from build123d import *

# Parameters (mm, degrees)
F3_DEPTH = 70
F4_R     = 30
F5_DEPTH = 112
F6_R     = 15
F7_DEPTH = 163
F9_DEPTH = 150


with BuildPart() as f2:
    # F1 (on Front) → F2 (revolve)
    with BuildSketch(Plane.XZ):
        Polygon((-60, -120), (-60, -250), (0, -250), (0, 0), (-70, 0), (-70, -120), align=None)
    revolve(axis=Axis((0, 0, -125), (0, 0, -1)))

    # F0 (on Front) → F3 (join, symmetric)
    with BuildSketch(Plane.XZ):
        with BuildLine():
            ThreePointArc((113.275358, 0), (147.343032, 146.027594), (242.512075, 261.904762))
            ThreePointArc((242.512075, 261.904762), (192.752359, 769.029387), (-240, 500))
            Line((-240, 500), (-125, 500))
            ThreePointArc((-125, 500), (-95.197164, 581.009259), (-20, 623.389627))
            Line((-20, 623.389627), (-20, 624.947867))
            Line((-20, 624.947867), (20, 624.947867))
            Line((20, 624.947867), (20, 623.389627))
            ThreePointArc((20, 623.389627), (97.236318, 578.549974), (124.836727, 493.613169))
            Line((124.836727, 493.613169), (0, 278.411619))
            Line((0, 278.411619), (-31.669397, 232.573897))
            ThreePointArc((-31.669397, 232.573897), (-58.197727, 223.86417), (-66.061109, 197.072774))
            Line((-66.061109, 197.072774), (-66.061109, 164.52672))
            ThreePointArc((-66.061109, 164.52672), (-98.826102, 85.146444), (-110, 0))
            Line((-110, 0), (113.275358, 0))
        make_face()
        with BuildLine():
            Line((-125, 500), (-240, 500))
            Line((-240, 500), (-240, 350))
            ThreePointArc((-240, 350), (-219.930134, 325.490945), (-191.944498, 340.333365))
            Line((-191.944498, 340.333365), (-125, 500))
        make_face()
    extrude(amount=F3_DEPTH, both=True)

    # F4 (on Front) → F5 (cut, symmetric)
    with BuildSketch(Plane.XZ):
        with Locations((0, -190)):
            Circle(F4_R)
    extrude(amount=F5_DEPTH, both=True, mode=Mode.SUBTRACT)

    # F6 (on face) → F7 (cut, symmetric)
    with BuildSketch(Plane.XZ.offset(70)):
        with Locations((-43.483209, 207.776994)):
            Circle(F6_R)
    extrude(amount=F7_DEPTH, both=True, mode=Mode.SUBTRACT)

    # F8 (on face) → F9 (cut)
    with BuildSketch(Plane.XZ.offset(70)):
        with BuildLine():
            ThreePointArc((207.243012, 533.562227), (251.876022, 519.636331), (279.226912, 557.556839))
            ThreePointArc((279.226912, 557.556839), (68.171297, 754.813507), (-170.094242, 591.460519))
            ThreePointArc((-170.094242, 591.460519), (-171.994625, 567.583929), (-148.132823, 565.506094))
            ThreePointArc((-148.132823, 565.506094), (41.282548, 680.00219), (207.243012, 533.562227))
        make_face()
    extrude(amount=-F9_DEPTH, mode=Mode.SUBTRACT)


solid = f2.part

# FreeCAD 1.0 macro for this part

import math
import FreeCAD as App
import Part
import Sketcher
from FreeCAD import Vector


def add_polygon(sketch, points):
    """Adds a closed chain of lines whose ends are joined by coincident constraints."""
    first, n = sketch.GeometryCount, len(points)
    for a, b in zip(points, points[1:] + points[:1]):
        sketch.addGeometry(Part.LineSegment(App.Vector(*a, 0), App.Vector(*b, 0)), False)
    for i in range(n):
        sketch.addConstraint(Sketcher.Constraint("Coincident", first + i, 2, first + (i + 1) % n, 1))

doc = App.newDocument("Part")
body = doc.addObject("PartDesign::Body", "Body")

sketch1 = body.newObject("Sketcher::SketchObject", "Sketch")
sketch1.AttachmentSupport = (doc.getObject("XZ_Plane"), [""])
sketch1.MapMode = "FlatFace"
add_polygon(sketch1, [(-60, -120), (-60, -250), (0, -250), (0, 0), (-70, 0), (-70, -120)])
sketch1.addConstraint([
    Sketcher.Constraint("Vertical", 0),
    Sketcher.Constraint("Horizontal", 1),
    Sketcher.Constraint("Vertical", 2),
    Sketcher.Constraint("Horizontal", 3),
    Sketcher.Constraint("Vertical", 4),
    Sketcher.Constraint("Horizontal", 5),
    Sketcher.Constraint("Coincident", 2, 2, -1, 1),
    Sketcher.Constraint("DistanceX", 1, 1, 1, 2, 60.0),
    Sketcher.Constraint("DistanceX", 3, 2, 3, 1, 70.0),
    Sketcher.Constraint("DistanceY", 0, 2, 0, 1, 130.0),
    Sketcher.Constraint("DistanceY", 2, 1, 2, 2, 250.0),
])
revolution = body.newObject("PartDesign::Revolution", "Revolution")
revolution.Profile = sketch1
revolution.ReferenceAxis = (sketch1, ["V_Axis"])
revolution.Angle = 360

sketch2 = body.newObject("Sketcher::SketchObject", "Sketch001")
sketch2.AttachmentSupport = (doc.getObject("XZ_Plane"), [""])
sketch2.MapMode = "FlatFace"
sketch2.addGeometry([
    Part.ArcOfCircle(Part.Circle(Vector(443.3, 0, 0), Vector(0, 0, 1), 330), math.radians(127), math.radians(180)),
    Part.ArcOfCircle(Part.Circle(Vector(60, 500, 0), Vector(0, 0, 1), 300), math.radians(-53), math.radians(180)),
    Part.LineSegment(Vector(-240, 500, 0), Vector(-240, 350, 0)),
    Part.ArcOfCircle(Part.Circle(Vector(-215, 350, 0), Vector(0, 0, 1), 25), math.radians(-180), math.radians(-23)),
    Part.LineSegment(Vector(-191.9, 340.3, 0), Vector(-125, 500, 0)),
    Part.ArcOfCircle(Part.Circle(Vector(0, 500, 0), Vector(0, 0, 1), 125), math.radians(99), math.radians(180)),
    Part.LineSegment(Vector(-20, 623.4, 0), Vector(-20, 624.9, 0)),
    Part.LineSegment(Vector(-20, 624.9, 0), Vector(20, 624.9, 0)),
    Part.LineSegment(Vector(20, 624.9, 0), Vector(20, 623.4, 0)),
    Part.ArcOfCircle(Part.Circle(Vector(0, 500, 0), Vector(0, 0, 1), 125), math.radians(-3), math.radians(81)),
    Part.LineSegment(Vector(124.8, 493.6, 0), Vector(0, 278.4, 0)),
    Part.LineSegment(Vector(0, 278.4, 0), Vector(-31.7, 232.6, 0)),
    Part.ArcOfCircle(Part.Circle(Vector(-36.7, 203, 0), Vector(0, 0, 1), 30), math.radians(80), math.radians(191)),
    Part.LineSegment(Vector(-66.1, 197.1, 0), Vector(-66.1, 164.5, 0)),
    Part.ArcOfCircle(Part.Circle(Vector(220, 0, 0), Vector(0, 0, 1), 330), math.radians(150), math.radians(180)),
    Part.LineSegment(Vector(-110, 0, 0), Vector(113.3, 0, 0)),
], False)
sketch2.addConstraint([
    Sketcher.Constraint("Tangent", 0, 1, 1, 1),
    Sketcher.Constraint("Tangent", 1, 2, 2, 1),
    Sketcher.Constraint("Tangent", 2, 2, 3, 1),
    Sketcher.Constraint("Tangent", 3, 2, 4, 1),
    Sketcher.Constraint("Coincident", 4, 2, 5, 2),
    Sketcher.Constraint("Coincident", 5, 1, 6, 1),
    Sketcher.Constraint("Coincident", 6, 2, 7, 1),
    Sketcher.Constraint("Coincident", 7, 2, 8, 1),
    Sketcher.Constraint("Coincident", 8, 2, 9, 2),
    Sketcher.Constraint("Coincident", 9, 1, 10, 1),
    Sketcher.Constraint("Coincident", 10, 2, 11, 1),
    Sketcher.Constraint("Coincident", 11, 2, 12, 1),
    Sketcher.Constraint("Coincident", 12, 2, 13, 1),
    Sketcher.Constraint("Coincident", 13, 2, 14, 1),
    Sketcher.Constraint("Coincident", 14, 2, 15, 1),
    Sketcher.Constraint("Coincident", 15, 2, 0, 2),
    Sketcher.Constraint("Vertical", 2),
    Sketcher.Constraint("Vertical", 6),
    Sketcher.Constraint("Horizontal", 7),
    Sketcher.Constraint("Vertical", 8),
    Sketcher.Constraint("Vertical", 13),
    Sketcher.Constraint("Horizontal", 15),
    Sketcher.Constraint("Coincident", 9, 3, 5, 3),
    Sketcher.Constraint("Equal", 5, 9),
    Sketcher.Constraint("Symmetric", 5, 1, 8, 2, -2),
    Sketcher.Constraint("PointOnObject", 0, 3, -1),
    Sketcher.Constraint("PointOnObject", 10, 2, -2),
    Sketcher.Constraint("PointOnObject", 14, 2, -1),
    Sketcher.Constraint("Horizontal", 1, 3, 5, 3),
    Sketcher.Constraint("Horizontal", 1, 2, 4, 2),
    Sketcher.Constraint("Radius", 1, 300.0),
    Sketcher.Constraint("Radius", 3, 25.0),
    Sketcher.Constraint("Radius", 5, 124.999999),
    Sketcher.Constraint("Radius", 12, 30.0),
    Sketcher.Constraint("DistanceX", 7, 1, 7, 2, 40.0),
    Sketcher.Constraint("DistanceY", 2, 2, 2, 1, 150.0),
    Sketcher.Constraint("DistanceX", -1, 1, 1, 3, 60.0),
    Sketcher.Constraint("DistanceY", -1, 1, 1, 3, 500.0),
    Sketcher.Constraint("DistanceX", 14, 2, -1, 1, 110.0),
    Sketcher.Constraint("Radius", 0, 330.000004),
    Sketcher.Constraint("Radius", 14, 329.999982),
    Sketcher.Constraint("DistanceY", 6, 1, 6, 2, 1.55824),
    Sketcher.Constraint("DistanceY", 9, 1, 7, 2, 131.334698),
    Sketcher.Constraint("DistanceX", 3, 2, 11, 2, 160.275101),
    Sketcher.Constraint("DistanceY", 13, 2, 10, 2, 113.884899),
    Sketcher.Constraint("Distance", 11, 55.713979),
    Sketcher.Constraint("DistanceY", 13, 2, 13, 1, 32.546054),
    Sketcher.Constraint("DistanceX", 12, 3, -1, 1, 36.65052),
    Sketcher.Constraint("DistanceY", -1, 1, 10, 2, 278.411619),
])
pad1 = body.newObject("PartDesign::Pad", "Pad")
pad1.Profile = sketch2
pad1.Length = 140
pad1.Midplane = True

sketch3 = body.newObject("Sketcher::SketchObject", "Sketch002")
sketch3.AttachmentSupport = (doc.getObject("XZ_Plane"), [""])
sketch3.MapMode = "FlatFace"
sketch3.addGeometry(Part.Circle(Vector(0, -190, 0), Vector(0, 0, 1), 30), False)
sketch3.addConstraint([
    Sketcher.Constraint("PointOnObject", 0, 3, -2),
    Sketcher.Constraint("Diameter", 0, 60.0),
    Sketcher.Constraint("DistanceY", 0, 3, -1, 1, 190.0),
])
pocket1 = body.newObject("PartDesign::Pocket", "Pocket")
pocket1.Profile = sketch3
pocket1.Length = 224
pocket1.Midplane = True

sketch4 = body.newObject("Sketcher::SketchObject", "Sketch003")
sketch4.AttachmentSupport = (doc.getObject("XZ_Plane"), [""])
sketch4.MapMode = "FlatFace"
sketch4.AttachmentOffset = App.Placement(Vector(0, 0, 70), App.Rotation())
sketch4.addGeometry(Part.Circle(Vector(-43, 208, 0), Vector(0, 0, 1), 15), False)
sketch4.addConstraint([
    Sketcher.Constraint("Diameter", 0, 30.0),
    Sketcher.Constraint("DistanceX", 0, 3, -1, 1, 43.483209),
    Sketcher.Constraint("DistanceY", -1, 1, 0, 3, 207.776994),
])
pocket2 = body.newObject("PartDesign::Pocket", "Pocket001")
pocket2.Profile = sketch4
pocket2.Length = 326
pocket2.Midplane = True

sketch5 = body.newObject("Sketcher::SketchObject", "Sketch004")
sketch5.AttachmentSupport = (doc.getObject("XZ_Plane"), [""])
sketch5.MapMode = "FlatFace"
sketch5.AttachmentOffset = App.Placement(Vector(0, 0, 70), App.Rotation())
sketch5.addGeometry([
    Part.ArcOfCircle(Part.Circle(Vector(239.226921, 557.583666, 0), Vector(0, 0, 1), 40), math.radians(-143.091706), math.radians(-0.038427)),
    Part.ArcOfCircle(Part.Circle(Vector(50.807784, 524.697079, 0), Vector(0, 0, 1), 230.770583), math.radians(8.186253), math.radians(163.183556)),
    Part.ArcOfCircle(Part.Circle(Vector(-159.017054, 578.564942, 0), Vector(0, 0, 1), 17), math.radians(130.662291), math.radians(309.810381)),
    Part.ArcOfCircle(Part.Circle(Vector(24.542518, 493.769199, 0), Vector(0, 0, 1), 186.983838), math.radians(12.287389), math.radians(157.439863)),
], False)
sketch5.addConstraint([
    Sketcher.Constraint("Coincident", 0, 2, 1, 1),
    Sketcher.Constraint("Coincident", 1, 2, 2, 1),
    Sketcher.Constraint("Coincident", 2, 2, 3, 2),
    Sketcher.Constraint("Coincident", 3, 1, 0, 1),
    Sketcher.Constraint("Radius", 0, 40.0),
    Sketcher.Constraint("Radius", 2, 17.0),
    Sketcher.Constraint("Radius", 1, 230.770583),
    Sketcher.Constraint("Radius", 3, 186.983838),
    Sketcher.Constraint("DistanceY", -1, 1, 3, 3, 493.769199),
    Sketcher.Constraint("DistanceX", 3, 1, 0, 2, 71.9839),
    Sketcher.Constraint("DistanceX", -1, 1, 0, 3, 239.226921),
    Sketcher.Constraint("DistanceY", -1, 1, 1, 3, 524.697079),
    Sketcher.Constraint("DistanceX", -1, 1, 3, 3, 24.542518),
    Sketcher.Constraint("DistanceX", -1, 1, 0, 2, 279.226912),
    Sketcher.Constraint("DistanceX", 1, 2, -1, 1, 170.094242),
    Sketcher.Constraint("DistanceX", 1, 2, 2, 3, 11.077188),
])
pocket3 = body.newObject("PartDesign::Pocket", "Pocket002")
pocket3.Profile = sketch5
pocket3.Length = 150

doc.recompute()
